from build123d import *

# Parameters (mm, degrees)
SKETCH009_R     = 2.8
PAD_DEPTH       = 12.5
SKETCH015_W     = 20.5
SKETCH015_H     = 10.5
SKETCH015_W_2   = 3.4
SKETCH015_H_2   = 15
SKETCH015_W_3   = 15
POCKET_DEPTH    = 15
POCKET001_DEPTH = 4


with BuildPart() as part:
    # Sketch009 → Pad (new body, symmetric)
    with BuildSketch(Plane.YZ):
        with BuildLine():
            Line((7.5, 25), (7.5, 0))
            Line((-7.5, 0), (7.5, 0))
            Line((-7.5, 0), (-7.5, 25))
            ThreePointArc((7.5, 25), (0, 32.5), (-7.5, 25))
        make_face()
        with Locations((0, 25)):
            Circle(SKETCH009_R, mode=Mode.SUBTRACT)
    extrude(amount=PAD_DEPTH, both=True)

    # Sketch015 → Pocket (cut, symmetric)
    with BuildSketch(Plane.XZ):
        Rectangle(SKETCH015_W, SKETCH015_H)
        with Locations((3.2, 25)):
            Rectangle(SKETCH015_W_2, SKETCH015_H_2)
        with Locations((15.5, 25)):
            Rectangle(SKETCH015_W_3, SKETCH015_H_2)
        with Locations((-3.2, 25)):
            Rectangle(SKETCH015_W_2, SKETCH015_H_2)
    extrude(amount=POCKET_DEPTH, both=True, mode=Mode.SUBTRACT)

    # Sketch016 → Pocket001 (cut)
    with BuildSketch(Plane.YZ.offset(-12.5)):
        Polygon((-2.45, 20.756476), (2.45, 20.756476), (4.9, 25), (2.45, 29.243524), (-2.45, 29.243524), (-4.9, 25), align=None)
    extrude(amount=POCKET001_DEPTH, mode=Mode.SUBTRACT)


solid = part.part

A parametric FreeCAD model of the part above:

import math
import FreeCAD as App
import Part
import Sketcher
Q = App.Units.Quantity

doc = App.newDocument("Part")
body = doc.addObject("PartDesign::Body", "Body")

# Sketch on YZ plane
sketch1 = doc.addObject("Sketcher::SketchObject", "Sketch")
body.addObject(sketch1)
sketch1.AttachmentSupport = (doc.YZ_Plane, [""])
sketch1.MapMode = "FlatFace"
sketch1.addGeometry([
    Part.LineSegment(App.Vector(7.5, 0, 0), App.Vector(7.5, 25, 0)),  # 0
    Part.ArcOfCircle(Part.Circle(App.Vector(0, 25, 0), App.Vector(0, 0, 1), 7.5), math.radians(0), math.radians(180)),  # 1
    Part.LineSegment(App.Vector(-7.5, 25, 0), App.Vector(-7.5, 0, 0)),  # 2
    Part.LineSegment(App.Vector(-7.5, 0, 0), App.Vector(7.5, 0, 0)),  # 3
    Part.Circle(App.Vector(0, 25, 0), App.Vector(0, 0, 1), 2.8),  # 4
], False)
sketch1.addConstraint([
    Sketcher.Constraint("Tangent", 0, 2, 1, 1),
    Sketcher.Constraint("Tangent", 1, 2, 2, 1),
    Sketcher.Constraint("Coincident", 2, 2, 3, 1),
    Sketcher.Constraint("Coincident", 3, 2, 0, 1),
    Sketcher.Constraint("Vertical", 0),
    Sketcher.Constraint("Vertical", 2),
    Sketcher.Constraint("Horizontal", 3),
    Sketcher.Constraint("Coincident", 4, 3, 1, 3),
    Sketcher.Constraint("Symmetric", 2, 2, 3, 2, -1, 1),
    Sketcher.Constraint("Diameter", 4, 5.6),
    Sketcher.Constraint("Radius", 1, 7.5),
    Sketcher.Constraint("DistanceY", 0, 1, 0, 2, 25.0),
])
pad1 = doc.addObject("PartDesign::Pad", "Pad")
body.addObject(pad1)
pad1.Profile = sketch1
pad1.Length = 25
pad1.Midplane = True

# Sketch on XZ plane
sketch2 = doc.addObject("Sketcher::SketchObject", "Sketch001")
body.addObject(sketch2)
sketch2.AttachmentSupport = (doc.XZ_Plane, [""])
sketch2.MapMode = "FlatFace"
sketch2.addGeometry([
    Part.LineSegment(App.Vector(-10.25, 5.25, 0), App.Vector(-10.25, -5.25, 0)),  # 0
    Part.LineSegment(App.Vector(-10.25, -5.25, 0), App.Vector(10.25, -5.25, 0)),  # 1
    Part.LineSegment(App.Vector(10.25, -5.25, 0), App.Vector(10.25, 5.25, 0)),  # 2
    Part.LineSegment(App.Vector(10.25, 5.25, 0), App.Vector(-10.25, 5.25, 0)),  # 3
    Part.LineSegment(App.Vector(1.5, 32.5, 0), App.Vector(1.5, 17.5, 0)),  # 4
    Part.LineSegment(App.Vector(1.5, 17.5, 0), App.Vector(4.9, 17.5, 0)),  # 5
    Part.LineSegment(App.Vector(4.9, 17.5, 0), App.Vector(4.9, 32.5, 0)),  # 6
    Part.LineSegment(App.Vector(4.9, 32.5, 0), App.Vector(1.5, 32.5, 0)),  # 7
    Part.LineSegment(App.Vector(8, 32.5, 0), App.Vector(8, 17.5, 0)),  # 8
    Part.LineSegment(App.Vector(8, 17.5, 0), App.Vector(23, 17.5, 0)),  # 9
    Part.LineSegment(App.Vector(23, 17.5, 0), App.Vector(23, 32.5, 0)),  # 10
    Part.LineSegment(App.Vector(23, 32.5, 0), App.Vector(8, 32.5, 0)),  # 11
    Part.LineSegment(App.Vector(-4.9, 32.5, 0), App.Vector(-4.9, 17.5, 0)),  # 12
    Part.LineSegment(App.Vector(-4.9, 17.5, 0), App.Vector(-1.5, 17.5, 0)),  # 13
    Part.LineSegment(App.Vector(-1.5, 17.5, 0), App.Vector(-1.5, 32.5, 0)),  # 14
    Part.LineSegment(App.Vector(-1.5, 32.5, 0), App.Vector(-4.9, 32.5, 0)),  # 15
], False)
sketch2.addConstraint([
    Sketcher.Constraint("Coincident", 0, 2, 1, 1),
    Sketcher.Constraint("Coincident", 1, 2, 2, 1),
    Sketcher.Constraint("Coincident", 2, 2, 3, 1),
    Sketcher.Constraint("Coincident", 3, 2, 0, 1),
    Sketcher.Constraint("Coincident", 4, 2, 5, 1),
    Sketcher.Constraint("Coincident", 5, 2, 6, 1),
    Sketcher.Constraint("Coincident", 6, 2, 7, 1),
    Sketcher.Constraint("Coincident", 7, 2, 4, 1),
    Sketcher.Constraint("Coincident", 8, 2, 9, 1),
    Sketcher.Constraint("Coincident", 9, 2, 10, 1),
    Sketcher.Constraint("Coincident", 10, 2, 11, 1),
    Sketcher.Constraint("Coincident", 11, 2, 8, 1),
    Sketcher.Constraint("Coincident", 12, 2, 13, 1),
    Sketcher.Constraint("Coincident", 13, 2, 14, 1),
    Sketcher.Constraint("Coincident", 14, 2, 15, 1),
    Sketcher.Constraint("Coincident", 15, 2, 12, 1),
    Sketcher.Constraint("Vertical", 0),
    Sketcher.Constraint("Horizontal", 1),
    Sketcher.Constraint("Vertical", 2),
    Sketcher.Constraint("Horizontal", 3),
    Sketcher.Constraint("Vertical", 4),
    Sketcher.Constraint("Horizontal", 5),
    Sketcher.Constraint("Vertical", 6),
    Sketcher.Constraint("Horizontal", 7),
    Sketcher.Constraint("Vertical", 8),
    Sketcher.Constraint("Horizontal", 9),
    Sketcher.Constraint("Vertical", 10),
    Sketcher.Constraint("Horizontal", 11),
    Sketcher.Constraint("Vertical", 12),
    Sketcher.Constraint("Horizontal", 13),
    Sketcher.Constraint("Vertical", 14),
    Sketcher.Constraint("Horizontal", 15),
    Sketcher.Constraint("Symmetric", 0, 2, 2, 2, -1, 1),
    Sketcher.Constraint("Symmetric", 5, 2, 12, 2, -2),
    Sketcher.Constraint("Symmetric", 7, 2, 14, 2, -2),
    Sketcher.Constraint("Horizontal", 5, 2, 8, 2),
    Sketcher.Constraint("Horizontal", 7, 2, 10, 2),
    Sketcher.Constraint("Equal", 11, 4),
    Sketcher.Constraint("DistanceX", 9, 1, 9, 2, 15.0),
    Sketcher.Constraint("DistanceX", 1, 1, 1, 2, 20.5),
    Sketcher.Constraint("DistanceX", 5, 1, 5, 2, 3.4),
    Sketcher.Constraint("DistanceY", 0, 2, 0, 1, 10.5),
    Sketcher.Constraint("DistanceX", -1, 1, 8, 2, 8.0),
    Sketcher.Constraint("DistanceX", 13, 2, 4, 2, 3.0),
    Sketcher.Constraint("DistanceY", -1, 1, 4, 2, 17.5),
])
pocket1 = doc.addObject("PartDesign::Pocket", "Pocket")
body.addObject(pocket1)
pocket1.Profile = sketch2
pocket1.Length = 30
pocket1.Midplane = True

# Sketch on YZ plane
sketch3 = doc.addObject("Sketcher::SketchObject", "Sketch002")
body.addObject(sketch3)
sketch3.AttachmentSupport = (doc.YZ_Plane, [""])
sketch3.MapMode = "FlatFace"
sketch3.AttachmentOffset = App.Placement(App.Vector(0, 0, -12.5), App.Rotation())
sketch3.addGeometry([
    Part.LineSegment(App.Vector(-2.45, 20.756476, 0), App.Vector(2.45, 20.756476, 0)),  # 0
    Part.LineSegment(App.Vector(2.45, 20.756476, 0), App.Vector(4.9, 25, 0)),  # 1
    Part.LineSegment(App.Vector(4.9, 25, 0), App.Vector(2.45, 29.243524, 0)),  # 2
    Part.LineSegment(App.Vector(2.45, 29.243524, 0), App.Vector(-2.45, 29.243524, 0)),  # 3
    Part.LineSegment(App.Vector(-2.45, 29.243524, 0), App.Vector(-4.9, 25, 0)),  # 4
    Part.LineSegment(App.Vector(-4.9, 25, 0), App.Vector(-2.45, 20.756476, 0)),  # 5
], False)
sketch3.addConstraint([
    Sketcher.Constraint("Coincident", 0, 2, 1, 1),
    Sketcher.Constraint("Coincident", 1, 2, 2, 1),
    Sketcher.Constraint("Coincident", 2, 2, 3, 1),
    Sketcher.Constraint("Coincident", 3, 2, 4, 1),
    Sketcher.Constraint("Coincident", 4, 2, 5, 1),
    Sketcher.Constraint("Coincident", 5, 2, 0, 1),
    Sketcher.Constraint("Horizontal", 0),
    Sketcher.Constraint("Horizontal", 3),
    Sketcher.Constraint("Symmetric", 1, 2, 4, 2, -2),
    Sketcher.Constraint("Parallel", 1, 4),
    Sketcher.Constraint("Parallel", 2, 5),
    Sketcher.Constraint("Vertical", 0, 2, 2, 2),
    Sketcher.Constraint("Vertical", 3, 2, 5, 2),
    Sketcher.Constraint("Angle", 1, Q("59.999997 deg")),
    Sketcher.Constraint("DistanceX", 0, 1, 0, 2, 4.9),
    Sketcher.Constraint("DistanceY", -1, 1, 1, 2, 25.0),
    Sketcher.Constraint("Distance", 1, 4.9),
])
pocket2 = doc.addObject("PartDesign::Pocket", "Pocket001")
body.addObject(pocket2)
pocket2.Profile = sketch3
pocket2.Length = 4
pocket2.Reversed = True

doc.recompute()
